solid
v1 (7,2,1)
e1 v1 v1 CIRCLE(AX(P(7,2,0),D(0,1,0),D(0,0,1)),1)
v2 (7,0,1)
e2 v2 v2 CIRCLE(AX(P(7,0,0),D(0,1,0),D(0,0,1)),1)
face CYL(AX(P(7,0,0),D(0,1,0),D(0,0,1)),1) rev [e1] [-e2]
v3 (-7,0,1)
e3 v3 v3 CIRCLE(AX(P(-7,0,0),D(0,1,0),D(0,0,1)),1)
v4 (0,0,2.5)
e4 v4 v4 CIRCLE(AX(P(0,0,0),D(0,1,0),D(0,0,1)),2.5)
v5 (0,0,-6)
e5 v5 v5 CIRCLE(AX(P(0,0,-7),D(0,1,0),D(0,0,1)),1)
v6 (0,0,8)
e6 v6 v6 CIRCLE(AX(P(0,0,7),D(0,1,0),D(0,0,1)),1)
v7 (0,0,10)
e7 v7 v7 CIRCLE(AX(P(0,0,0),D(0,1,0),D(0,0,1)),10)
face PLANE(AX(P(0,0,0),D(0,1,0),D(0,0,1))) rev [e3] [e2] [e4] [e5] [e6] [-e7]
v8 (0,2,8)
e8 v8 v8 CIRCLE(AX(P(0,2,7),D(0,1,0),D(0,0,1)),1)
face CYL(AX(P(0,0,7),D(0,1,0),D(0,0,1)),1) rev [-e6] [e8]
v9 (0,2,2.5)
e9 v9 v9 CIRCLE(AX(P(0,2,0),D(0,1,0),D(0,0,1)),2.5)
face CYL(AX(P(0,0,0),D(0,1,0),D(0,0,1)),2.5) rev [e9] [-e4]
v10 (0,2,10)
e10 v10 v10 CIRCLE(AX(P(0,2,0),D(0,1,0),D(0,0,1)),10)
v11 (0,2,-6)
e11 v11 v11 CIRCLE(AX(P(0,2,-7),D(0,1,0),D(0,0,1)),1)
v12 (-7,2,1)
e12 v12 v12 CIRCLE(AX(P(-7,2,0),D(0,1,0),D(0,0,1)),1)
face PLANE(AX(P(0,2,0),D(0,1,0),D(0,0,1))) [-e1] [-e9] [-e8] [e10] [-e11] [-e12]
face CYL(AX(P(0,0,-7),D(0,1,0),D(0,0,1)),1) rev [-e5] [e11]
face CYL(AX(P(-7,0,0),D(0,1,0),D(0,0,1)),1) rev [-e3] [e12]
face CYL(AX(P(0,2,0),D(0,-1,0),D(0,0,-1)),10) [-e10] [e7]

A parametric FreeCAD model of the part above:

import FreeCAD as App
import Part
import Sketcher
from FreeCAD import Vector

doc = App.newDocument("Part")
body = doc.addObject("PartDesign::Body", "Body")

sketch1 = body.newObject("Sketcher::SketchObject", "Sketch")
sketch1.AttachmentSupport = (doc.getObject("XZ_Plane"), [""])
sketch1.MapMode = "FlatFace"
sketch1.addGeometry(Part.Circle(Vector(0, 0, 0), Vector(0, 0, 1), 10), False)
sketch1.addConstraint(Sketcher.Constraint("Coincident", 0, 3, -1, 1))
sketch1.addConstraint(Sketcher.Constraint("Diameter", 0, 20.0))
pad1 = body.newObject("PartDesign::Pad", "Pad")
pad1.Profile = sketch1
pad1.Length = 2
pad1.Reversed = True

sketch2 = body.newObject("Sketcher::SketchObject", "Sketch001")
sketch2.AttachmentSupport = (doc.getObject("XZ_Plane"), [""])
sketch2.MapMode = "FlatFace"
sketch2.AttachmentOffset = App.Placement(Vector(0, 0, -2), App.Rotation())
sketch2.addGeometry(Part.Circle(Vector(0, 0, 0), Vector(0, 0, 1), 2.5), False)
sketch2.addConstraint(Sketcher.Constraint("Coincident", 0, 3, -1, 1))
sketch2.addConstraint(Sketcher.Constraint("Diameter", 0, 5.0))
pocket1 = body.newObject("PartDesign::Pocket", "Pocket")
pocket1.Profile = sketch2
pocket1.Length = 2
pocket1.Reversed = True

sketch3 = body.newObject("Sketcher::SketchObject", "Sketch002")
sketch3.AttachmentSupport = (doc.getObject("XZ_Plane"), [""])
sketch3.MapMode = "FlatFace"
sketch3.AttachmentOffset = App.Placement(Vector(0, 0, -2), App.Rotation())
sketch3.addGeometry(Part.Circle(Vector(7, 0, 0), Vector(0, 0, 1), 1), False)
sketch3.addGeometry(Part.Circle(Vector(0, 7, 0), Vector(0, 0, 1), 1), False)
sketch3.addGeometry(Part.Circle(Vector(-7, 0, 0), Vector(0, 0, 1), 1), False)
sketch3.addGeometry(Part.Circle(Vector(0, -7, 0), Vector(0, 0, 1), 1), False)
sketch3.addConstraint(Sketcher.Constraint("Equal", 0, 1))
sketch3.addConstraint(Sketcher.Constraint("Equal", 1, 2))
sketch3.addConstraint(Sketcher.Constraint("Equal", 2, 3))
sketch3.addConstraint(Sketcher.Constraint("Symmetric", 0, 3, 2, 3, -1, 1))
sketch3.addConstraint(Sketcher.Constraint("Symmetric", 1, 3, 3, 3, -1, 1))
sketch3.addConstraint(Sketcher.Constraint("PointOnObject", 0, 3, -1))
sketch3.addConstraint(Sketcher.Constraint("PointOnObject", 1, 3, -2))
sketch3.addConstraint(Sketcher.Constraint("Diameter", 0, 2.0))
sketch3.addConstraint(Sketcher.Constraint("DistanceX", -1, 1, 0, 3, 7.0))
sketch3.addConstraint(Sketcher.Constraint("DistanceY", -1, 1, 1, 3, 7.0))
pocket2 = body.newObject("PartDesign::Pocket", "Pocket001")
pocket2.Profile = sketch3
pocket2.Length = 2
pocket2.Reversed = True

doc.recompute()
